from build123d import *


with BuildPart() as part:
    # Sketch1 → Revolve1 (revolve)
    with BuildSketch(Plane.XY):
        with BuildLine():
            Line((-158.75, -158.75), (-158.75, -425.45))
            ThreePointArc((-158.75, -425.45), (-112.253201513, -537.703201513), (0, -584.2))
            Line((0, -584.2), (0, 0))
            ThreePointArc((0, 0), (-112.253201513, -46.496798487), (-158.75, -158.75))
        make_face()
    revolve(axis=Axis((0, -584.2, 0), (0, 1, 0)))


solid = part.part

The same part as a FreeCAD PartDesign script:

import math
import FreeCAD as App
import Part
import Sketcher
from FreeCAD import Vector
Q = App.Units.Quantity

doc = App.newDocument("Part")
body = doc.addObject("PartDesign::Body", "Body")

sketch1 = body.newObject("Sketcher::SketchObject", "Sketch")
sketch1.AttachmentSupport = (doc.getObject("XY_Plane"), [""])
sketch1.MapMode = "FlatFace"
sketch1.addGeometry([
    Part.LineSegment(Vector(-158.75, -158.75, 0), Vector(-158.75, -425.45, 0)),
    Part.ArcOfCircle(Part.Circle(Vector(0, -425.45, 0), Vector(0, 0, 1), 158.75), math.radians(-180), math.radians(-90)),
    Part.LineSegment(Vector(0, -584.2, 0), Vector(0, 0, 0)),
    Part.ArcOfCircle(Part.Circle(Vector(0, -158.75, 0), Vector(0, 0, 1), 158.75), math.radians(90), math.radians(180)),
], False)
sketch1.addConstraint([
    Sketcher.Constraint("Tangent", 0, 2, 1, 1),
    Sketcher.Constraint("Coincident", 1, 2, 2, 1),
    Sketcher.Constraint("Coincident", 2, 2, 3, 1),
    Sketcher.Constraint("Tangent", 3, 2, 0, 1),
    Sketcher.Constraint("Vertical", 0),
    Sketcher.Constraint("Vertical", 2),
    Sketcher.Constraint("Coincident", 2, 2, -1, 1),
    Sketcher.Constraint("Equal", 1, 3),
    Sketcher.Constraint("PointOnObject", 1, 3, -2),
    Sketcher.Constraint("DistanceY", 2, 1, 2, 2, Q("23 in")),
    Sketcher.Constraint("Radius", 1, Q("6.25 in")),
])
revolution = body.newObject("PartDesign::Revolution", "Revolution")
revolution.Profile = sketch1
revolution.ReferenceAxis = (sketch1, ["V_Axis"])
revolution.Angle = 360

doc.recompute()
